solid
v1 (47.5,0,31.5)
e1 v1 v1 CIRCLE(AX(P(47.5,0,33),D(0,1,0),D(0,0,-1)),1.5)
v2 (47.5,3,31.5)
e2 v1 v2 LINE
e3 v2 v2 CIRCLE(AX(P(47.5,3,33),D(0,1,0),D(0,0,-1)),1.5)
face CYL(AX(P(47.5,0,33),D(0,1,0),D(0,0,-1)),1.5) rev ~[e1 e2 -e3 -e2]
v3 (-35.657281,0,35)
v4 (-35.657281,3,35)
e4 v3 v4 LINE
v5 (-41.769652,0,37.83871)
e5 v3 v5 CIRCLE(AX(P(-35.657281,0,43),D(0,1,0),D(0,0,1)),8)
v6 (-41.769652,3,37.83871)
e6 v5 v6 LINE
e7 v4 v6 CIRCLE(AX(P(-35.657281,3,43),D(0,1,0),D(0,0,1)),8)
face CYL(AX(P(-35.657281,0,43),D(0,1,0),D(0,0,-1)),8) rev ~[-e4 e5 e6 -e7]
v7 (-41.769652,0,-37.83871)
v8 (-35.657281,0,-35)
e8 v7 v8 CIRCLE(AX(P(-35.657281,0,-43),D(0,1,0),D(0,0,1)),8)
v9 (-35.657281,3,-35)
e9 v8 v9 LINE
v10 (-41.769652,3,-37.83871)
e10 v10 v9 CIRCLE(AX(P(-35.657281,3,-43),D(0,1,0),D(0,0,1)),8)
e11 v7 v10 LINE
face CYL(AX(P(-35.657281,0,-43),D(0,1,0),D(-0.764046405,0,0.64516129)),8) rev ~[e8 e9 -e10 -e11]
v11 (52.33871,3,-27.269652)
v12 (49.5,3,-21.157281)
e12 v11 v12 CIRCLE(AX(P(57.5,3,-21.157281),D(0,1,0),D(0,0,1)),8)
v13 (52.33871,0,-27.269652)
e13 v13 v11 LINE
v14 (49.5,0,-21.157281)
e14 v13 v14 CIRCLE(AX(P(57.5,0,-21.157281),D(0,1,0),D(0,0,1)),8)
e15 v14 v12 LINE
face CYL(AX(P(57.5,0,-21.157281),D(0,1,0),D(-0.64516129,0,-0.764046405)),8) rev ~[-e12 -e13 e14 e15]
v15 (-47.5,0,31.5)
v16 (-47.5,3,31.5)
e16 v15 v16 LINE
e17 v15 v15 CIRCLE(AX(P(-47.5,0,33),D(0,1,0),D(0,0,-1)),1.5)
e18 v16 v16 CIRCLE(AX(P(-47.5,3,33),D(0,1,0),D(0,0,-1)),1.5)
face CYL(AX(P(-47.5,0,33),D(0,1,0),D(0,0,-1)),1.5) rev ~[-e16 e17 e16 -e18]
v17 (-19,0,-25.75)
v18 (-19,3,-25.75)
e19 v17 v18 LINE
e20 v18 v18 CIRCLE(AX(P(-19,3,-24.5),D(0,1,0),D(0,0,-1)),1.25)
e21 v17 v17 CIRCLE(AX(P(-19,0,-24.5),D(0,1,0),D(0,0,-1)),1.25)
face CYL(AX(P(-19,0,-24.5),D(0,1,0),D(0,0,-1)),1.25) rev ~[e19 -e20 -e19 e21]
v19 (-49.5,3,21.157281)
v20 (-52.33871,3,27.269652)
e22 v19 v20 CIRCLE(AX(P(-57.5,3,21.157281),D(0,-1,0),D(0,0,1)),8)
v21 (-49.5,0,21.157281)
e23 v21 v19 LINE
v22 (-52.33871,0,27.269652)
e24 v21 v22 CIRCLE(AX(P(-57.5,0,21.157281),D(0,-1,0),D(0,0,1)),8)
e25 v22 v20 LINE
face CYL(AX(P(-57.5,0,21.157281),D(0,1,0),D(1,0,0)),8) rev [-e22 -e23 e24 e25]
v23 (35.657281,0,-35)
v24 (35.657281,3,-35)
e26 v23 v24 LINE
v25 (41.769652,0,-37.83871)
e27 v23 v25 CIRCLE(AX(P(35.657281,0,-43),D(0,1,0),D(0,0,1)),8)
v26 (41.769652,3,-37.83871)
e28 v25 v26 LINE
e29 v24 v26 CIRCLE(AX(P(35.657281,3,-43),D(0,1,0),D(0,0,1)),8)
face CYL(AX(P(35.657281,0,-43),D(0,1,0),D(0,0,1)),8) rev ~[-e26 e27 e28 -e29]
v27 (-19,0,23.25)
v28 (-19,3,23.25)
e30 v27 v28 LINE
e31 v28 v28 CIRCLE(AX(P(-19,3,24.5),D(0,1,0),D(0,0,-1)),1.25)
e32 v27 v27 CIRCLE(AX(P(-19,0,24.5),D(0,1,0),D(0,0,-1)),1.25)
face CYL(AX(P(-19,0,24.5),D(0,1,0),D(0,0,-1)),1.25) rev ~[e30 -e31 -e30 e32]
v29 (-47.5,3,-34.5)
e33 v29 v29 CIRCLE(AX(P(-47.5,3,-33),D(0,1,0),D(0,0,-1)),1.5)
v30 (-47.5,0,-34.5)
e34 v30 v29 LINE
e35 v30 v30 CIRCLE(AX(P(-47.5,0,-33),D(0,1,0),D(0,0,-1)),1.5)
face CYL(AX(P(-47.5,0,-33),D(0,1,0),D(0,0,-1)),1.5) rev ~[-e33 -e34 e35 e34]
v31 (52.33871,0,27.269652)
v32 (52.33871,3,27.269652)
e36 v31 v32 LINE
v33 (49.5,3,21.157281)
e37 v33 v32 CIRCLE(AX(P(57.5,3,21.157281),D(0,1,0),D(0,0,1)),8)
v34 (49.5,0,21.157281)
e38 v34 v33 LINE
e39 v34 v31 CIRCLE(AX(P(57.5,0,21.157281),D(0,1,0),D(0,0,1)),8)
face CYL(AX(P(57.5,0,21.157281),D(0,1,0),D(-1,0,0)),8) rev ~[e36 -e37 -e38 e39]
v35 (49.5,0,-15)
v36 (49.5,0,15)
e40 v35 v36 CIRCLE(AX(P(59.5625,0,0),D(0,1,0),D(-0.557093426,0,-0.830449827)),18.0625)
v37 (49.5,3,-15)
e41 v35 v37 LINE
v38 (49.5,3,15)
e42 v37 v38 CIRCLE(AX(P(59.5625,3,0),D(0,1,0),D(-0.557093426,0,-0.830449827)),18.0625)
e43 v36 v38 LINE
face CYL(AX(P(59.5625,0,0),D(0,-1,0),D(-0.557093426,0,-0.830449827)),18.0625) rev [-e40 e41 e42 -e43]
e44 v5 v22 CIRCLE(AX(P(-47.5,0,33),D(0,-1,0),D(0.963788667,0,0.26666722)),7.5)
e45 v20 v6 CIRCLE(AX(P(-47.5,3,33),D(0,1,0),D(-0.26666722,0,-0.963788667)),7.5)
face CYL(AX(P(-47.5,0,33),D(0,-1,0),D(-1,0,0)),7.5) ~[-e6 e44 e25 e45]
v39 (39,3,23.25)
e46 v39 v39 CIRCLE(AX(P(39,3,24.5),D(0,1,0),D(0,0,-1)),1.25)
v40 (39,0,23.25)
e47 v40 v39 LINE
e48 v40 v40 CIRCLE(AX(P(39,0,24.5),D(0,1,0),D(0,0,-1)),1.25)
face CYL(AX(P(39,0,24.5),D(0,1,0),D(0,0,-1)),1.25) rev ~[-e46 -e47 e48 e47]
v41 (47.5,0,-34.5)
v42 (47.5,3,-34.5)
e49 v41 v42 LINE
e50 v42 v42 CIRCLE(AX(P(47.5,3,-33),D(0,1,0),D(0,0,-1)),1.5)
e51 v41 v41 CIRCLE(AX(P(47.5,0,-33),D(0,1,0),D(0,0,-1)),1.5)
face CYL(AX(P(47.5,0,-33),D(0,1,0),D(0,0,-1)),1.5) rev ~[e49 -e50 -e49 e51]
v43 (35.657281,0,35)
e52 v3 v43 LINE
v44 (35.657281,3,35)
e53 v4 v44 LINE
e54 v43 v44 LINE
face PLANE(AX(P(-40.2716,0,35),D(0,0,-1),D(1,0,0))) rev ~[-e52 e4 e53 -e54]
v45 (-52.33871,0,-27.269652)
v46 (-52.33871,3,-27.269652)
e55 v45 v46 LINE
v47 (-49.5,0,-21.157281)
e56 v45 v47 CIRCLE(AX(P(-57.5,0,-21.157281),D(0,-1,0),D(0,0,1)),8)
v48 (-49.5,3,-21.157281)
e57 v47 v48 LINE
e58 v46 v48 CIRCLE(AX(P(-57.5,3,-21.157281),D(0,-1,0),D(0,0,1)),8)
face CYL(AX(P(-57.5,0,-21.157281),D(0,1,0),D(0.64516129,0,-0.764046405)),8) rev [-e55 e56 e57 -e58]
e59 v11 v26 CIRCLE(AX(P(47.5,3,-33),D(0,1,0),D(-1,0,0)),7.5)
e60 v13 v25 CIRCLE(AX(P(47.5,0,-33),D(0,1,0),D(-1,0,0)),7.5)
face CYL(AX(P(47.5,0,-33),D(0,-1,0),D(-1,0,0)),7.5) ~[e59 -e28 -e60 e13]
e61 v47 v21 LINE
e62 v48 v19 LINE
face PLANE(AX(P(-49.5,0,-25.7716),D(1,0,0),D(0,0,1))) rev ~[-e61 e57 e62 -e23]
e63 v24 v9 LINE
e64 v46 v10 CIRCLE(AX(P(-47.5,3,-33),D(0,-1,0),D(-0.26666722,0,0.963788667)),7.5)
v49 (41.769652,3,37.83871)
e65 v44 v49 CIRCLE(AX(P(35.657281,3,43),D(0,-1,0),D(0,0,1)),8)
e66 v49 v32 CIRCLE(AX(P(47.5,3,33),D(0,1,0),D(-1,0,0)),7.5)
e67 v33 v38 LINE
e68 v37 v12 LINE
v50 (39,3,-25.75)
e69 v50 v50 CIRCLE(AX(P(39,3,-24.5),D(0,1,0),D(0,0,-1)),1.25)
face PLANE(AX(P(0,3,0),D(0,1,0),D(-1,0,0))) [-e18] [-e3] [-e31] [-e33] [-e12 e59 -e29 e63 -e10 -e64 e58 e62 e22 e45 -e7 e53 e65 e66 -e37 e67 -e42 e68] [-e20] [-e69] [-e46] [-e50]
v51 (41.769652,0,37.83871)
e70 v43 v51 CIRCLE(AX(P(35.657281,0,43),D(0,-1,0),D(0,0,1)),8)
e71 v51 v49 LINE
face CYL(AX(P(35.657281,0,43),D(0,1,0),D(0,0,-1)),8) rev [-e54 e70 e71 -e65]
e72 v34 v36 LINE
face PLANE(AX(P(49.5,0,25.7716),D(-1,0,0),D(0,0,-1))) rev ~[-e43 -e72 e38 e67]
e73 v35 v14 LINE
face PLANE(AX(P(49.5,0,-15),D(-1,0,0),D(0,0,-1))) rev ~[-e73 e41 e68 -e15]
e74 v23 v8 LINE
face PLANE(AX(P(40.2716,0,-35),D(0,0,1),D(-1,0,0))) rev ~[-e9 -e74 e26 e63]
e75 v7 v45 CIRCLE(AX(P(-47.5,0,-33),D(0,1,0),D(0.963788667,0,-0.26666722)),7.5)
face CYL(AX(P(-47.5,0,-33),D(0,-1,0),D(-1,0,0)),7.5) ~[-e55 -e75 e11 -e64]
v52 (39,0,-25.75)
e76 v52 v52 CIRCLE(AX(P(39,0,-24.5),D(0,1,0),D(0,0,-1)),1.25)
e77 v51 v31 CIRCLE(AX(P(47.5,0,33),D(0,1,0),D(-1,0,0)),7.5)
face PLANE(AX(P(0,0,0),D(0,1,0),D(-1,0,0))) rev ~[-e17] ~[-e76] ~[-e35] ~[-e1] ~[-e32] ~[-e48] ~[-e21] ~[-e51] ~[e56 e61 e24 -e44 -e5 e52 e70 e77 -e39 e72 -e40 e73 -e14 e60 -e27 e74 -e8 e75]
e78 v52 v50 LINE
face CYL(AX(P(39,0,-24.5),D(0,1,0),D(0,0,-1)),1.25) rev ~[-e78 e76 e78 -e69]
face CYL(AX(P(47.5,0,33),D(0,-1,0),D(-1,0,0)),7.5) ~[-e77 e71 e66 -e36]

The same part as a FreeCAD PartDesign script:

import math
import FreeCAD as App
import Part
import Sketcher
from FreeCAD import Vector
Q = App.Units.Quantity


def edges_at(feature, points):
    """Names of the edges that pass closest to the given points."""
    edges = feature.Shape.Edges
    near = lambda p: min(range(len(edges)), key=lambda i: edges[i].distToShape(Part.Vertex(*p))[0])
    return sorted({f"Edge{near(p) + 1}" for p in points})

doc = App.newDocument("Part")
body = doc.addObject("PartDesign::Body", "Body")

# Sketch on XZ plane
sketch1 = body.newObject("Sketcher::SketchObject", "Sketch")
sketch1.AttachmentSupport = (doc.getObject("XZ_Plane"), [""])
sketch1.MapMode = "FlatFace"
sketch1.addGeometry(Part.ArcOfCircle(Part.Circle(Vector(-48, -33, 0), Vector(0, 0, 1), 8), math.radians(105), math.radians(345)), False)
sketch1.addGeometry(Part.LineSegment(Vector(-50, -26, 0), Vector(-50, 26, 0)), False)
sketch1.addGeometry(Part.ArcOfCircle(Part.Circle(Vector(-48, 33, 0), Vector(0, 0, 1), 8), math.radians(15), math.radians(255)), False)
sketch1.addGeometry(Part.LineSegment(Vector(-40, 35, 0), Vector(40, 35, 0)), False)
sketch1.addGeometry(Part.ArcOfCircle(Part.Circle(Vector(48, 33, 0), Vector(0, 0, 1), 8), math.radians(-75), math.radians(165)), False)
sketch1.addGeometry(Part.LineSegment(Vector(50, 26, 0), Vector(50, 15, 0)), False)
sketch1.addGeometry(Part.ArcOfCircle(Part.Circle(Vector(60, 0, 0), Vector(0, 0, 1), 18), math.radians(124), math.radians(236)), False)
sketch1.addGeometry(Part.LineSegment(Vector(50, -15, 0), Vector(50, -26, 0)), False)
sketch1.addGeometry(Part.ArcOfCircle(Part.Circle(Vector(48, -33, 0), Vector(0, 0, 1), 8), math.radians(-165), math.radians(75)), False)
sketch1.addGeometry(Part.LineSegment(Vector(40, -35, 0), Vector(-40, -35, 0)), False)
sketch1.addConstraint(Sketcher.Constraint("Coincident", 0, 1, 1, 1))
sketch1.addConstraint(Sketcher.Constraint("Coincident", 1, 2, 2, 2))
sketch1.addConstraint(Sketcher.Constraint("Coincident", 2, 1, 3, 1))
sketch1.addConstraint(Sketcher.Constraint("Coincident", 3, 2, 4, 2))
sketch1.addConstraint(Sketcher.Constraint("Coincident", 4, 1, 5, 1))
sketch1.addConstraint(Sketcher.Constraint("Coincident", 5, 2, 6, 1))
sketch1.addConstraint(Sketcher.Constraint("Coincident", 6, 2, 7, 1))
sketch1.addConstraint(Sketcher.Constraint("Coincident", 7, 2, 8, 2))
sketch1.addConstraint(Sketcher.Constraint("Coincident", 8, 1, 9, 1))
sketch1.addConstraint(Sketcher.Constraint("Coincident", 9, 2, 0, 2))
sketch1.addConstraint(Sketcher.Constraint("Vertical", 1))
sketch1.addConstraint(Sketcher.Constraint("Horizontal", 3))
sketch1.addConstraint(Sketcher.Constraint("Vertical", 5))
sketch1.addConstraint(Sketcher.Constraint("Vertical", 7))
sketch1.addConstraint(Sketcher.Constraint("Horizontal", 9))
sketch1.addConstraint(Sketcher.Constraint("Equal", 0, 2))
sketch1.addConstraint(Sketcher.Constraint("Equal", 2, 4))
sketch1.addConstraint(Sketcher.Constraint("Equal", 4, 8))
sketch1.addConstraint(Sketcher.Constraint("Symmetric", 0, 3, 4, 3, -1, 1))
sketch1.addConstraint(Sketcher.Constraint("Symmetric", 2, 3, 8, 3, -1, 1))
sketch1.addConstraint(Sketcher.Constraint("Symmetric", 2, 3, 4, 3, -2))
sketch1.addConstraint(Sketcher.Constraint("Symmetric", 5, 2, 6, 2, -1))
sketch1.addConstraint(Sketcher.Constraint("Horizontal", 1, 2, 4, 1))
sketch1.addConstraint(Sketcher.Constraint("Vertical", 3, 2, 8, 1))
sketch1.addConstraint(Sketcher.Constraint("Radius", 0, Q("7.5 mm")))
sketch1.addConstraint(Sketcher.Constraint("DistanceY", -1, 1, 5, 2, Q("15 mm")))
sketch1.addConstraint(Sketcher.Constraint("DistanceX", 0, 1, 0, 3, Q("2 mm")))
sketch1.addConstraint(Sketcher.Constraint("DistanceY", 2, 3, 2, 1, Q("2 mm")))
sketch1.addConstraint(Sketcher.Constraint("DistanceY", 0, 3, -1, 1, Q("33 mm")))
sketch1.addConstraint(Sketcher.Constraint("DistanceX", 2, 3, 4, 3, Q("95 mm")))
sketch1.addConstraint(Sketcher.Constraint("Radius", 6, Q("18.0625 mm")))
pad1 = body.newObject("PartDesign::Pad", "Pad")
pad1.Profile = sketch1
pad1.Length = 3
pad1.Reversed = True
doc.recompute()

fillet = body.newObject("PartDesign::Fillet", "Fillet")
fillet.Base = (pad1, edges_at(pad1, [
    (-49.5, 1.5, -25.772),
    (-49.5, 1.5, 25.772),
    (-40.272, 1.5, 35),
    (40.272, 1.5, 35),
    (49.5, 1.5, 25.772),
    (49.5, 1.5, -25.772),
    (40.272, 1.5, -35),
    (-40.272, 1.5, -35),
]))
fillet.Radius = 8

# Sketch on XZ plane
sketch2 = body.newObject("Sketcher::SketchObject", "Sketch001")
sketch2.AttachmentSupport = (doc.getObject("XZ_Plane"), [""])
sketch2.MapMode = "FlatFace"
sketch2.addGeometry(Part.Circle(Vector(-47.5, 33, 0), Vector(0, 0, 1), 1.5), False)
sketch2.addGeometry(Part.Circle(Vector(-47.5, -33, 0), Vector(0, 0, 1), 1.5), False)
sketch2.addGeometry(Part.Circle(Vector(47.5, -33, 0), Vector(0, 0, 1), 1.5), False)
sketch2.addGeometry(Part.Circle(Vector(47.5, 33, 0), Vector(0, 0, 1), 1.5), False)
sketch2.addConstraint(Sketcher.Constraint("Equal", 0, 1))
sketch2.addConstraint(Sketcher.Constraint("Equal", 1, 2))
sketch2.addConstraint(Sketcher.Constraint("Equal", 2, 3))
sketch2.addConstraint(Sketcher.Constraint("Symmetric", 0, 3, 2, 3, -1, 1))
sketch2.addConstraint(Sketcher.Constraint("Symmetric", 1, 3, 3, 3, -1, 1))
sketch2.addConstraint(Sketcher.Constraint("Symmetric", 1, 3, 2, 3, -2))
sketch2.addConstraint(Sketcher.Constraint("Diameter", 0, Q("3 mm")))
sketch2.addConstraint(Sketcher.Constraint("DistanceY", -1, 1, 0, 3, Q("33 mm")))
sketch2.addConstraint(Sketcher.Constraint("DistanceX", 1, 3, 2, 3, Q("95 mm")))
doc.recompute()
hole = body.newObject("PartDesign::Hole", "Hole")
hole.Profile = sketch2
hole.ThreadType = "None"
hole.Diameter = 3
hole.DepthType = "ThroughAll"

# Sketch on XZ plane
sketch3 = body.newObject("Sketcher::SketchObject", "Sketch002")
sketch3.AttachmentSupport = (doc.getObject("XZ_Plane"), [""])
sketch3.MapMode = "FlatFace"
sketch3.addGeometry(Part.Circle(Vector(-19, 24.5, 0), Vector(0, 0, 1), 1.2), False)
sketch3.addGeometry(Part.Circle(Vector(-19, -24.5, 0), Vector(0, 0, 1), 1.2), False)
sketch3.addGeometry(Part.Circle(Vector(39, -24.5, 0), Vector(0, 0, 1), 1.2), False)
sketch3.addGeometry(Part.Circle(Vector(39, 24.5, 0), Vector(0, 0, 1), 1.2), False)
sketch3.addConstraint(Sketcher.Constraint("Equal", 0, 1))
sketch3.addConstraint(Sketcher.Constraint("Equal", 1, 2))
sketch3.addConstraint(Sketcher.Constraint("Equal", 2, 3))
sketch3.addConstraint(Sketcher.Constraint("Symmetric", 0, 3, 1, 3, -1))
sketch3.addConstraint(Sketcher.Constraint("Symmetric", 2, 3, 3, 3, -1))
sketch3.addConstraint(Sketcher.Constraint("Horizontal", 1, 3, 2, 3))
sketch3.addConstraint(Sketcher.Constraint("Diameter", 0, Q("2.5 mm")))
sketch3.addConstraint(Sketcher.Constraint("DistanceX", 0, 3, -1, 1, Q("19 mm")))
sketch3.addConstraint(Sketcher.Constraint("DistanceX", -1, 1, 2, 3, Q("39 mm")))
sketch3.addConstraint(Sketcher.Constraint("DistanceY", 1, 3, 0, 3, Q("49 mm")))
doc.recompute()
hole2 = body.newObject("PartDesign::Hole", "Hole001")
hole2.Profile = sketch3
hole2.ThreadType = "None"
hole2.Diameter = 2.5
hole2.DepthType = "ThroughAll"

doc.recompute()
